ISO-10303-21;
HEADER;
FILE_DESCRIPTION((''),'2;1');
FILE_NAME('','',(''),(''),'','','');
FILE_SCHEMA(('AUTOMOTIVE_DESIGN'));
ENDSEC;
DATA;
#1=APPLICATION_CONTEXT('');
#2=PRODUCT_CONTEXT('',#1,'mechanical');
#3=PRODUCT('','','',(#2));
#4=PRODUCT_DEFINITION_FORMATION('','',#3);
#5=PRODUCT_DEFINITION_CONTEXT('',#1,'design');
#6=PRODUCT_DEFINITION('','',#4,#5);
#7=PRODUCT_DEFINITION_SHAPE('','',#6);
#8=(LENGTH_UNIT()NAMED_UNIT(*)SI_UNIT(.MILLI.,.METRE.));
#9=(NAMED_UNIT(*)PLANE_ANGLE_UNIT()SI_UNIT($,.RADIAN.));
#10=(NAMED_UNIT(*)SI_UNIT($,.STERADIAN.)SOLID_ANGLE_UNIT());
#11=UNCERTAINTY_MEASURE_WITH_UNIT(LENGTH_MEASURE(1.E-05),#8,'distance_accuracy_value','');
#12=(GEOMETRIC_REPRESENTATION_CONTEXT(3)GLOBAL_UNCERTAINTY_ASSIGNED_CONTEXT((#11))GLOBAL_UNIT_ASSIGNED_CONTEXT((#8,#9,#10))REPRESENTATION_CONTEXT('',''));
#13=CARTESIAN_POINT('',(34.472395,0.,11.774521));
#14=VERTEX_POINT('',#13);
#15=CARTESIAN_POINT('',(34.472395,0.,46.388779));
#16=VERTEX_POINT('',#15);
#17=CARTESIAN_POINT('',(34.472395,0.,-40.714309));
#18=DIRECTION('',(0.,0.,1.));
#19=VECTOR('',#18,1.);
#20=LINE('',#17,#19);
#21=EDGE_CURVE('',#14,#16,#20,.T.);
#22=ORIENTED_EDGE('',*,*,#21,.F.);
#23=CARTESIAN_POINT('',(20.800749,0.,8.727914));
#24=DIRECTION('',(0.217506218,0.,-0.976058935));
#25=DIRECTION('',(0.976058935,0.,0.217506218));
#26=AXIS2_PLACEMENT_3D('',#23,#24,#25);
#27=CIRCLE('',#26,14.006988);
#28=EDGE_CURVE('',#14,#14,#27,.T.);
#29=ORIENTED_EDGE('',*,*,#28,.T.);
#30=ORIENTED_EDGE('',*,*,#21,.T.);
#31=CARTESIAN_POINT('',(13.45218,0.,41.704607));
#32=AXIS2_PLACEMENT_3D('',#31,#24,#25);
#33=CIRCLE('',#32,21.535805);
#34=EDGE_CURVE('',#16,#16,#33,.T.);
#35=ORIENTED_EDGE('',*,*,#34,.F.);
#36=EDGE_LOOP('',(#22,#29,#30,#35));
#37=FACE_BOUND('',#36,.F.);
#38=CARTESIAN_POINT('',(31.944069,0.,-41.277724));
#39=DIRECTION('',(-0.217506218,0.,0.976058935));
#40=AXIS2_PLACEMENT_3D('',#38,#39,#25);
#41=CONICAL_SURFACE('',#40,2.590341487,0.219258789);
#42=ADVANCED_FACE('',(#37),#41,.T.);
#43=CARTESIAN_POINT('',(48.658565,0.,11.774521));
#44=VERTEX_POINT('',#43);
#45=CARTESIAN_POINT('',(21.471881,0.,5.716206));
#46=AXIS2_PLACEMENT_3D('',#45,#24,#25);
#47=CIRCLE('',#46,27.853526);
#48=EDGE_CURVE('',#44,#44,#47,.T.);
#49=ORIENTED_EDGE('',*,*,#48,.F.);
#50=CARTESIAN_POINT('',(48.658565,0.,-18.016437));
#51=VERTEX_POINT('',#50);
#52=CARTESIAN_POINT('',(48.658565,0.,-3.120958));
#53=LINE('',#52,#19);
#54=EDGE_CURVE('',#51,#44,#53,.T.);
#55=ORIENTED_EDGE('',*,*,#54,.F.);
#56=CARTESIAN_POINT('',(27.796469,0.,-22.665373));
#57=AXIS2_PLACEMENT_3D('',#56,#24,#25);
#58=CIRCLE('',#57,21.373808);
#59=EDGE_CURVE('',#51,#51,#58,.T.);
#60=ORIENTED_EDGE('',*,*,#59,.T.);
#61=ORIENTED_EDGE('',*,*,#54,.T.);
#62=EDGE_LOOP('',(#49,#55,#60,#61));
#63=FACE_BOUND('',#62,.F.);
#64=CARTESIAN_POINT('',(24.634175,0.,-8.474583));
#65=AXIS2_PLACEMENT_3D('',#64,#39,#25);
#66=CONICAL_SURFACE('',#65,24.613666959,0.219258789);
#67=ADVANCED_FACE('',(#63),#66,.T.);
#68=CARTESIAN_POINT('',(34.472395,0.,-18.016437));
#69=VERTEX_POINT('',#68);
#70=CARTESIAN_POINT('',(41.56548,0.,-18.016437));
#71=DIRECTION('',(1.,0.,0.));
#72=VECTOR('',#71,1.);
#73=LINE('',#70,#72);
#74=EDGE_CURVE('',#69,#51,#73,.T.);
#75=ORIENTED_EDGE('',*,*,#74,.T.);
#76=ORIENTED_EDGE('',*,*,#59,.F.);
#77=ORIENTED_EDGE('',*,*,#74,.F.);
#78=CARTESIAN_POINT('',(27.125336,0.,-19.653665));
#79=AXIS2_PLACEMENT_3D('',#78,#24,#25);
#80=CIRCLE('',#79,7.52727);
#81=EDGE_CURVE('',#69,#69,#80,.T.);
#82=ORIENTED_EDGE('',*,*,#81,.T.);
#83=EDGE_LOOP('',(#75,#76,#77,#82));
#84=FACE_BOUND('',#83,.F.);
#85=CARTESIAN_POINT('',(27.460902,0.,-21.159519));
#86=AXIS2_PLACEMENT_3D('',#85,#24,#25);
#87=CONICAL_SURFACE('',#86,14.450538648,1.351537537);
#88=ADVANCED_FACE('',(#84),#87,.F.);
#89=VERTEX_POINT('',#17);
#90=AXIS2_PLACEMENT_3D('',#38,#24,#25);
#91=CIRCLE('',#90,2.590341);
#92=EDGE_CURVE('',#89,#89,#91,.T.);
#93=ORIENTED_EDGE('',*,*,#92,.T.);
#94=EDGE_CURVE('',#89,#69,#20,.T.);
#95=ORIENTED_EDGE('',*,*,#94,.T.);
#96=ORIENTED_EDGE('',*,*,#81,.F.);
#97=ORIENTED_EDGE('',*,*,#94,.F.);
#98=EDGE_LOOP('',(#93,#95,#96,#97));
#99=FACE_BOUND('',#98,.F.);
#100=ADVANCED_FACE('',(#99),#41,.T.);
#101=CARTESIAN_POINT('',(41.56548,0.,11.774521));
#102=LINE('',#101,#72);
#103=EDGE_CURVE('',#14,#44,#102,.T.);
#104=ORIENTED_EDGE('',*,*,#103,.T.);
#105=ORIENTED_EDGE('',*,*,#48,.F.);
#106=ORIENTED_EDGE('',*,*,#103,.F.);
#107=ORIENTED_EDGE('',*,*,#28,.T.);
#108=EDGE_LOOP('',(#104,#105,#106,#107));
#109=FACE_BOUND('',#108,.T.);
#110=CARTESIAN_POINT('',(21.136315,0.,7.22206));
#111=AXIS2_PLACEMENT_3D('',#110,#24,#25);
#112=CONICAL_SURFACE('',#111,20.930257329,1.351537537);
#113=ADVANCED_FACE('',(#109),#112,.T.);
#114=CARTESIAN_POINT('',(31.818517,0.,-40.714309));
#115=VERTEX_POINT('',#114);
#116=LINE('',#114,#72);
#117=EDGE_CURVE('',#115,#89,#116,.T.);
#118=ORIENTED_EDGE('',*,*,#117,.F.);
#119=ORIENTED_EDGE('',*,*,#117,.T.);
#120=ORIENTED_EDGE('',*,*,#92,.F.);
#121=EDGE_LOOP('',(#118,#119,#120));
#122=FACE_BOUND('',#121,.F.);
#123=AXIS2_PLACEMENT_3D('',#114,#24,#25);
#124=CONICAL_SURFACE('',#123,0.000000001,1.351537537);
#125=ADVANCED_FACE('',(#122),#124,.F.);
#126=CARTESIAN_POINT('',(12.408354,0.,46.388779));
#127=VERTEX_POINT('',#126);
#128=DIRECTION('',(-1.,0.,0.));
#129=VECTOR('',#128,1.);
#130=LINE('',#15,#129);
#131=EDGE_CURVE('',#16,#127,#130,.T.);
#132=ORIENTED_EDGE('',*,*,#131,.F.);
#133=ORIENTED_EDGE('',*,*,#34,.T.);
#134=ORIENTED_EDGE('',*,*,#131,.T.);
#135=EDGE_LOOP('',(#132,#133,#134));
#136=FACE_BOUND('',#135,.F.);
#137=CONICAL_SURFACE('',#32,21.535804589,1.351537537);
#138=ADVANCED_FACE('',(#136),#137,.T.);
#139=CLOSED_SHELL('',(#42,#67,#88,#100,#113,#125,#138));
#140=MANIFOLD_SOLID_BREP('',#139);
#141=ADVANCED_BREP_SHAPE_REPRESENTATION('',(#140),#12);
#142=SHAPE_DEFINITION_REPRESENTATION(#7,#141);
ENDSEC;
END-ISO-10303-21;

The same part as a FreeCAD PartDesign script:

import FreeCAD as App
import Part
import Sketcher

V = App.Vector
Q = App.Units.Quantity


def add_polygon(sketch, points):
    """Adds a closed chain of lines whose ends are joined by coincident constraints."""
    first, n = sketch.GeometryCount, len(points)
    for a, b in zip(points, points[1:] + points[:1]):
        sketch.addGeometry(Part.LineSegment(App.Vector(*a, 0), App.Vector(*b, 0)), False)
    for i in range(n):
        sketch.addConstraint(Sketcher.Constraint("Coincident", first + i, 2, first + (i + 1) % n, 1))

doc = App.newDocument("Part")
body = doc.addObject("PartDesign::Body", "Body")

sketch1 = doc.addObject("Sketcher::SketchObject", "Sketch")
body.addObject(sketch1)
sketch1.AttachmentSupport = (doc.XZ_Plane, [""])
sketch1.MapMode = "FlatFace"
add_polygon(sketch1, [(34.5, 46.4), (12.4, 46.4), (31.8, -40.7), (34.5, -40.7), (34.5, -18), (48.7, -18), (48.7, 11.8), (34.5, 11.8)])
sketch1.addGeometry(Part.LineSegment(V(12.4, 46.4, 0), V(31.9, -41.3, 0)), True)
sketch1.addConstraint(Sketcher.Constraint("Horizontal", 0))
sketch1.addConstraint(Sketcher.Constraint("Horizontal", 2))
sketch1.addConstraint(Sketcher.Constraint("Vertical", 3))
sketch1.addConstraint(Sketcher.Constraint("Horizontal", 4))
sketch1.addConstraint(Sketcher.Constraint("Vertical", 5))
sketch1.addConstraint(Sketcher.Constraint("Horizontal", 6))
sketch1.addConstraint(Sketcher.Constraint("Vertical", 7))
sketch1.addConstraint(Sketcher.Constraint("Coincident", 8, 1, 0, 2))
sketch1.addConstraint(Sketcher.Constraint("Parallel", 1, 8))
sketch1.addConstraint(Sketcher.Constraint("Vertical", 3, 2, 6, 2))
sketch1.addConstraint(Sketcher.Constraint("DistanceX", 0, 2, 0, 1, Q("22.064041 mm")))
sketch1.addConstraint(Sketcher.Constraint("DistanceX", 2, 1, 2, 2, Q("2.653878 mm")))
sketch1.addConstraint(Sketcher.Constraint("DistanceX", 4, 1, 4, 2, Q("14.18617 mm")))
sketch1.addConstraint(Sketcher.Constraint("DistanceY", 3, 1, 3, 2, Q("22.697872 mm")))
sketch1.addConstraint(Sketcher.Constraint("DistanceY", 5, 1, 5, 2, Q("29.790958 mm")))
sketch1.addConstraint(Sketcher.Constraint("DistanceY", 7, 1, 7, 2, Q("34.614258 mm")))
sketch1.addConstraint(Sketcher.Constraint("DistanceY", -1, 1, 0, 2, Q("46.388779 mm")))
sketch1.addConstraint(Sketcher.Constraint("DistanceX", -1, 1, 8, 2, Q("31.944069 mm")))
sketch1.addConstraint(Sketcher.Constraint("Distance", 8, Q("89.816813 mm")))
revolution = doc.addObject("PartDesign::Revolution", "Revolution")
body.addObject(revolution)
revolution.Profile = sketch1
revolution.ReferenceAxis = (sketch1, ["Axis0"])
revolution.Angle = 360

doc.recompute()
